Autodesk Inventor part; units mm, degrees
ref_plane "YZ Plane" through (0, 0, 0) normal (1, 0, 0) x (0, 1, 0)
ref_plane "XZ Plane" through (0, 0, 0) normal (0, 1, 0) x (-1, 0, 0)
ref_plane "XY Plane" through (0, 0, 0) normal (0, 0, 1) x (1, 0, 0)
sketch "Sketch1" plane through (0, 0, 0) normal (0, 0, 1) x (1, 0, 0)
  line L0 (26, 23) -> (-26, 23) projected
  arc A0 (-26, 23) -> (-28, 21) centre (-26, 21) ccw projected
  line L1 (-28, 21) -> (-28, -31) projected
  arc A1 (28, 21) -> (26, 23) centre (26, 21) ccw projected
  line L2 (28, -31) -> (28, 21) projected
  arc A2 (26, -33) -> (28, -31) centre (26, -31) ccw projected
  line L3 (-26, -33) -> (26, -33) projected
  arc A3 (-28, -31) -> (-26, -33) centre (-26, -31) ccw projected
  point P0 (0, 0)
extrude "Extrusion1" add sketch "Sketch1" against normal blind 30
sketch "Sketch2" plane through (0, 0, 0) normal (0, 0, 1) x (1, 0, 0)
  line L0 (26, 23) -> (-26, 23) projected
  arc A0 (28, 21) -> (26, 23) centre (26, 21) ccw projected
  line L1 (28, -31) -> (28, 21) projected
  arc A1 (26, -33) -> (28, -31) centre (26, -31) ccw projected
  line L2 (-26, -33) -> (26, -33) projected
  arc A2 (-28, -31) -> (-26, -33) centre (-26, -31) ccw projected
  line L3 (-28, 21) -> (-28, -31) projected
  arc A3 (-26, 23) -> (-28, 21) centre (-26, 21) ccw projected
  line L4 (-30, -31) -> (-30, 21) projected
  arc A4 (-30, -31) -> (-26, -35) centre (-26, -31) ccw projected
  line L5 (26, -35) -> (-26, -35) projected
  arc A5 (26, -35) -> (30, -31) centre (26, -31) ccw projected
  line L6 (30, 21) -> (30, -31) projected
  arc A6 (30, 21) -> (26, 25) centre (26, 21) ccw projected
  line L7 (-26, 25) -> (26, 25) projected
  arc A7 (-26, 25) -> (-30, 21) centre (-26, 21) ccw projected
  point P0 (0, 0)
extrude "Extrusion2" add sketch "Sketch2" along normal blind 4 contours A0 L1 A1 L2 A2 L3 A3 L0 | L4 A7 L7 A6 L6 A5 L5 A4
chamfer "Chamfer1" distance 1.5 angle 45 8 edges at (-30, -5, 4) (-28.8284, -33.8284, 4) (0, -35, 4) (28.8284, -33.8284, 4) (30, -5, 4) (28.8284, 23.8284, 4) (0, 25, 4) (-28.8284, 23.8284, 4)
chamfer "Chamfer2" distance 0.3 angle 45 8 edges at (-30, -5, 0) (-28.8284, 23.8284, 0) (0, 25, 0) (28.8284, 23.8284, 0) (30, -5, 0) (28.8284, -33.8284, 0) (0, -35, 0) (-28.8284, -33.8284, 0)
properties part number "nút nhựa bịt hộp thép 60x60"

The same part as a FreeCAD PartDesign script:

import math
import FreeCAD as App
import Part
import Sketcher

V = App.Vector
Q = App.Units.Quantity


def edges_at(feature, points):
    """Names of the edges that pass closest to the given points."""
    edges = feature.Shape.Edges
    near = lambda p: min(range(len(edges)), key=lambda i: edges[i].distToShape(Part.Vertex(*p))[0])
    return sorted({f"Edge{near(p) + 1}" for p in points})

doc = App.newDocument("Part")
body = doc.addObject("PartDesign::Body", "Body")

sketch1 = body.newObject("Sketcher::SketchObject", "Sketch")
sketch1.AttachmentSupport = (doc.getObject("XY_Plane"), [""])
sketch1.MapMode = "FlatFace"
sketch1.addGeometry(Part.ArcOfCircle(Part.Circle(V(26, 21, 0), V(0, 0, 1), 2), math.radians(0), math.radians(90)), False)
sketch1.addGeometry(Part.LineSegment(V(26, 23, 0), V(-26, 23, 0)), False)
sketch1.addGeometry(Part.ArcOfCircle(Part.Circle(V(-26, 21, 0), V(0, 0, 1), 2), math.radians(90), math.radians(180)), False)
sketch1.addGeometry(Part.LineSegment(V(-28, 21, 0), V(-28, -31, 0)), False)
sketch1.addGeometry(Part.ArcOfCircle(Part.Circle(V(-26, -31, 0), V(0, 0, 1), 2), math.radians(180), math.radians(270)), False)
sketch1.addGeometry(Part.LineSegment(V(-26, -33, 0), V(26, -33, 0)), False)
sketch1.addGeometry(Part.ArcOfCircle(Part.Circle(V(26, -31, 0), V(0, 0, 1), 2), math.radians(-90), math.radians(0)), False)
sketch1.addGeometry(Part.LineSegment(V(28, -31, 0), V(28, 21, 0)), False)
sketch1.addConstraint(Sketcher.Constraint("Tangent", 0, 2, 1, 1))
sketch1.addConstraint(Sketcher.Constraint("Tangent", 1, 2, 2, 1))
sketch1.addConstraint(Sketcher.Constraint("Tangent", 2, 2, 3, 1))
sketch1.addConstraint(Sketcher.Constraint("Tangent", 3, 2, 4, 1))
sketch1.addConstraint(Sketcher.Constraint("Tangent", 4, 2, 5, 1))
sketch1.addConstraint(Sketcher.Constraint("Tangent", 5, 2, 6, 1))
sketch1.addConstraint(Sketcher.Constraint("Tangent", 6, 2, 7, 1))
sketch1.addConstraint(Sketcher.Constraint("Tangent", 7, 2, 0, 1))
sketch1.addConstraint(Sketcher.Constraint("Horizontal", 1))
sketch1.addConstraint(Sketcher.Constraint("Vertical", 3))
sketch1.addConstraint(Sketcher.Constraint("Horizontal", 5))
sketch1.addConstraint(Sketcher.Constraint("Vertical", 7))
sketch1.addConstraint(Sketcher.Constraint("Equal", 0, 2))
sketch1.addConstraint(Sketcher.Constraint("Equal", 2, 4))
sketch1.addConstraint(Sketcher.Constraint("Equal", 4, 6))
sketch1.addConstraint(Sketcher.Constraint("Equal", 5, 3))
sketch1.addConstraint(Sketcher.Constraint("Radius", 0, Q("2 mm")))
sketch1.addConstraint(Sketcher.Constraint("DistanceX", 1, 2, 1, 1, Q("52 mm")))
sketch1.addConstraint(Sketcher.Constraint("DistanceX", -1, 1, 0, 3, Q("26 mm")))
sketch1.addConstraint(Sketcher.Constraint("DistanceY", -1, 1, 0, 3, Q("21 mm")))
pad1 = body.newObject("PartDesign::Pad", "Pad")
pad1.Profile = sketch1
pad1.Length = 30
pad1.Reversed = True

sketch2 = body.newObject("Sketcher::SketchObject", "Sketch001")
sketch2.AttachmentSupport = (doc.getObject("XY_Plane"), [""])
sketch2.MapMode = "FlatFace"
sketch2.addGeometry(Part.LineSegment(V(-30, 21, 0), V(-30, -31, 0)), False)
sketch2.addGeometry(Part.ArcOfCircle(Part.Circle(V(-26, -31, 0), V(0, 0, 1), 4), math.radians(180), math.radians(270)), False)
sketch2.addGeometry(Part.LineSegment(V(-26, -35, 0), V(26, -35, 0)), False)
sketch2.addGeometry(Part.ArcOfCircle(Part.Circle(V(26, -31, 0), V(0, 0, 1), 4), math.radians(-90), math.radians(0)), False)
sketch2.addGeometry(Part.LineSegment(V(30, -31, 0), V(30, 21, 0)), False)
sketch2.addGeometry(Part.ArcOfCircle(Part.Circle(V(26, 21, 0), V(0, 0, 1), 4), math.radians(0), math.radians(90)), False)
sketch2.addGeometry(Part.LineSegment(V(26, 25, 0), V(-26, 25, 0)), False)
sketch2.addGeometry(Part.ArcOfCircle(Part.Circle(V(-26, 21, 0), V(0, 0, 1), 4), math.radians(90), math.radians(180)), False)
sketch2.addConstraint(Sketcher.Constraint("Tangent", 0, 2, 1, 1))
sketch2.addConstraint(Sketcher.Constraint("Tangent", 1, 2, 2, 1))
sketch2.addConstraint(Sketcher.Constraint("Tangent", 2, 2, 3, 1))
sketch2.addConstraint(Sketcher.Constraint("Tangent", 3, 2, 4, 1))
sketch2.addConstraint(Sketcher.Constraint("Tangent", 4, 2, 5, 1))
sketch2.addConstraint(Sketcher.Constraint("Tangent", 5, 2, 6, 1))
sketch2.addConstraint(Sketcher.Constraint("Tangent", 6, 2, 7, 1))
sketch2.addConstraint(Sketcher.Constraint("Tangent", 7, 2, 0, 1))
sketch2.addConstraint(Sketcher.Constraint("Vertical", 0))
sketch2.addConstraint(Sketcher.Constraint("Horizontal", 2))
sketch2.addConstraint(Sketcher.Constraint("Vertical", 4))
sketch2.addConstraint(Sketcher.Constraint("Horizontal", 6))
sketch2.addConstraint(Sketcher.Constraint("Equal", 1, 3))
sketch2.addConstraint(Sketcher.Constraint("Equal", 3, 5))
sketch2.addConstraint(Sketcher.Constraint("Equal", 5, 7))
sketch2.addConstraint(Sketcher.Constraint("Equal", 6, 0))
sketch2.addConstraint(Sketcher.Constraint("Radius", 1, Q("4 mm")))
sketch2.addConstraint(Sketcher.Constraint("DistanceX", 2, 1, 2, 2, Q("52 mm")))
sketch2.addConstraint(Sketcher.Constraint("DistanceX", 1, 3, -1, 1, Q("26 mm")))
sketch2.addConstraint(Sketcher.Constraint("DistanceY", 1, 3, -1, 1, Q("31 mm")))
pad2 = body.newObject("PartDesign::Pad", "Pad001")
pad2.Profile = sketch2
pad2.Length = 4
doc.recompute()

chamfer = body.newObject("PartDesign::Chamfer", "Chamfer")
chamfer.Base = (pad2, edges_at(pad2, [
    (-30, -5, 4),
    (-28.828, -33.828, 4),
    (0, -35, 4),
    (28.828, -33.828, 4),
    (30, -5, 4),
    (28.828, 23.828, 4),
    (0, 25, 4),
    (-28.828, 23.828, 4),
]))
chamfer.Size = 1.5
doc.recompute()

chamfer2 = body.newObject("PartDesign::Chamfer", "Chamfer001")
chamfer2.Base = (chamfer, edges_at(chamfer, [
    (-30, -5, 0),
    (-28.828, 23.828, 0),
    (0, 25, 0),
    (28.828, 23.828, 0),
    (30, -5, 0),
    (28.828, -33.828, 0),
    (0, -35, 0),
    (-28.828, -33.828, 0),
]))
chamfer2.Size = 0.3

doc.recompute()
